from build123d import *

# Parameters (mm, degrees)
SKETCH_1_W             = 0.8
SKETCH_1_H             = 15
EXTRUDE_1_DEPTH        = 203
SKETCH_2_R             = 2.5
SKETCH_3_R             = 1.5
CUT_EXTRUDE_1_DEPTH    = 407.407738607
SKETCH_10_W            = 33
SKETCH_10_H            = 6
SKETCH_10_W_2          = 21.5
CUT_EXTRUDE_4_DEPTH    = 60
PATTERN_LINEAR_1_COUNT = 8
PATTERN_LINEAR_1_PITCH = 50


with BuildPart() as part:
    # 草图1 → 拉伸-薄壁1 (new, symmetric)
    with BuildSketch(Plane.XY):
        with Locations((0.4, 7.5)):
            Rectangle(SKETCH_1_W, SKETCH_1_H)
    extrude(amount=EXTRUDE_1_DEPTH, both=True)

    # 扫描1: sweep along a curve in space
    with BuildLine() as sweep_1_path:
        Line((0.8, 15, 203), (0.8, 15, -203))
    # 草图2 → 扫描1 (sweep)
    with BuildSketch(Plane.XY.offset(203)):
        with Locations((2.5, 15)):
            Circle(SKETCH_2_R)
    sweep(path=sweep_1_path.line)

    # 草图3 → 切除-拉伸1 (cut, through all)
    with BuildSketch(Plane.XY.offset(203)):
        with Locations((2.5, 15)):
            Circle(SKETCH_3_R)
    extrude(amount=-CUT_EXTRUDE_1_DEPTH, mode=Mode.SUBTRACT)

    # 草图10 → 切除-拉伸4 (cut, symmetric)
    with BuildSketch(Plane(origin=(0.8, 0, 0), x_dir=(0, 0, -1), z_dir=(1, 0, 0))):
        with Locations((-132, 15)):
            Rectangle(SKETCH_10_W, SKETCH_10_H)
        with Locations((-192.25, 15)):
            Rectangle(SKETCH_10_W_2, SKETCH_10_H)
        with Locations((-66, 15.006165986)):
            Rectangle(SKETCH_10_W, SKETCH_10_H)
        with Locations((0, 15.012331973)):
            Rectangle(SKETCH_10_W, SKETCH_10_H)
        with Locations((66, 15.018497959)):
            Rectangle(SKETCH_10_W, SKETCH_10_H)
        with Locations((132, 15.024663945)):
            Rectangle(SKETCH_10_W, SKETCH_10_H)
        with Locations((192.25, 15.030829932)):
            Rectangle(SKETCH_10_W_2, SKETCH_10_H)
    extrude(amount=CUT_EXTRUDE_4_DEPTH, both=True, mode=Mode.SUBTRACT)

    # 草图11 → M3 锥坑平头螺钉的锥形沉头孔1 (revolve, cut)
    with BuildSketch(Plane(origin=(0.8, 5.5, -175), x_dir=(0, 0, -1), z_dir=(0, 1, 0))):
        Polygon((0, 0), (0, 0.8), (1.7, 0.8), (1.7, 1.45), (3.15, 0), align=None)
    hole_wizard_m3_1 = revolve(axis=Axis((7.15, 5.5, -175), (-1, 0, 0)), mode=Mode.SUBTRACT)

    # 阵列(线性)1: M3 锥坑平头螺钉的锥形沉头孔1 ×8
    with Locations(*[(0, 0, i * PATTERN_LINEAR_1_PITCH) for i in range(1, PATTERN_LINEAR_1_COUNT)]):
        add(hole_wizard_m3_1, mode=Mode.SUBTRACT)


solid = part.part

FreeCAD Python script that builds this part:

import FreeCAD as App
import Part
import Sketcher
Q = App.Units.Quantity

doc = App.newDocument("Part")
body = doc.addObject("PartDesign::Body", "Body")

# Sketch on XY plane
sketch1 = body.newObject("Sketcher::SketchObject", "Sketch")
sketch1.AttachmentSupport = (doc.getObject("XY_Plane"), [""])
sketch1.MapMode = "FlatFace"
sketch1.addGeometry(Part.LineSegment(App.Vector(0, 15, 0), App.Vector(0, 0, 0)), False)
sketch1.addGeometry(Part.LineSegment(App.Vector(0, 0, 0), App.Vector(0.8, 0, 0)), False)
sketch1.addGeometry(Part.LineSegment(App.Vector(0.8, 0, 0), App.Vector(0.8, 15, 0)), False)
sketch1.addGeometry(Part.LineSegment(App.Vector(0.8, 15, 0), App.Vector(0, 15, 0)), False)
sketch1.addConstraint(Sketcher.Constraint("Coincident", 0, 2, 1, 1))
sketch1.addConstraint(Sketcher.Constraint("Coincident", 1, 2, 2, 1))
sketch1.addConstraint(Sketcher.Constraint("Coincident", 2, 2, 3, 1))
sketch1.addConstraint(Sketcher.Constraint("Coincident", 3, 2, 0, 1))
sketch1.addConstraint(Sketcher.Constraint("Vertical", 0))
sketch1.addConstraint(Sketcher.Constraint("Horizontal", 1))
sketch1.addConstraint(Sketcher.Constraint("Vertical", 2))
sketch1.addConstraint(Sketcher.Constraint("Horizontal", 3))
sketch1.addConstraint(Sketcher.Constraint("Coincident", 0, 2, -1, 1))
sketch1.addConstraint(Sketcher.Constraint("DistanceY", 0, 2, 0, 1, 15.0))
sketch1.addConstraint(Sketcher.Constraint("DistanceX", 1, 1, 1, 2, 0.8))
pad1 = body.newObject("PartDesign::Pad", "Pad")
pad1.Profile = sketch1
pad1.Length = 406
pad1.Midplane = True

# Sketch on XY plane
sketch2 = body.newObject("Sketcher::SketchObject", "Sketch001")
sketch2.AttachmentSupport = (doc.getObject("XY_Plane"), [""])
sketch2.MapMode = "FlatFace"
sketch2.AttachmentOffset = App.Placement(App.Vector(0, 0, 203), App.Rotation())
sketch2.addGeometry(Part.Circle(App.Vector(2.5, 15, 0), App.Vector(0, 0, 1), 2.5), False)
sketch2.addConstraint(Sketcher.Constraint("Diameter", 0, 5.0))
sketch2.addConstraint(Sketcher.Constraint("DistanceY", -1, 1, 0, 3, 15.0))
sketch2.addConstraint(Sketcher.Constraint("DistanceX", -1, 1, 0, 3, 2.5))

# Sketch on XZ plane
sketch3 = body.newObject("Sketcher::SketchObject", "Sketch002")
sketch3.AttachmentSupport = (doc.getObject("XZ_Plane"), [""])
sketch3.MapMode = "FlatFace"
sketch3.AttachmentOffset = App.Placement(App.Vector(0, 0, -15), App.Rotation())
sketch3.addGeometry(Part.LineSegment(App.Vector(1, 203, 0), App.Vector(1, -203, 0)), False)
sketch3.addConstraint(Sketcher.Constraint("Vertical", 0))
sketch3.addConstraint(Sketcher.Constraint("DistanceY", 0, 2, 0, 1, 406.0))
sketch3.addConstraint(Sketcher.Constraint("DistanceY", -1, 1, 0, 1, 203.0))
sketch3.addConstraint(Sketcher.Constraint("DistanceX", -1, 1, 0, 1, 0.8))
doc.recompute()

additivepipe = body.newObject("PartDesign::AdditivePipe", "AdditivePipe")
additivepipe.Profile = sketch2
additivepipe.Spine = (sketch3, ["Edge1"])

# Sketch on XY plane
sketch4 = body.newObject("Sketcher::SketchObject", "Sketch003")
sketch4.AttachmentSupport = (doc.getObject("XY_Plane"), [""])
sketch4.MapMode = "FlatFace"
sketch4.AttachmentOffset = App.Placement(App.Vector(0, 0, 203), App.Rotation())
sketch4.addGeometry(Part.Circle(App.Vector(2.5, 15, 0), App.Vector(0, 0, 1), 1.5), False)
sketch4.addConstraint(Sketcher.Constraint("Diameter", 0, 3.0))
sketch4.addConstraint(Sketcher.Constraint("DistanceY", -1, 1, 0, 3, 15.0))
sketch4.addConstraint(Sketcher.Constraint("DistanceX", -1, 1, 0, 3, 2.5))
pocket1 = body.newObject("PartDesign::Pocket", "Pocket")
pocket1.Profile = sketch4
pocket1.Type = "ThroughAll"

# Sketch on YZ plane
sketch5 = body.newObject("Sketcher::SketchObject", "Sketch004")
sketch5.AttachmentSupport = (doc.getObject("YZ_Plane"), [""])
sketch5.MapMode = "FlatFace"
sketch5.AttachmentOffset = App.Placement(App.Vector(0, 0, 0.8), App.Rotation())
sketch5.addGeometry(Part.LineSegment(App.Vector(18, 148, 0), App.Vector(12, 148, 0)), False)
sketch5.addGeometry(Part.LineSegment(App.Vector(12, 148, 0), App.Vector(12, 116, 0)), False)
sketch5.addGeometry(Part.LineSegment(App.Vector(12, 116, 0), App.Vector(18, 116, 0)), False)
sketch5.addGeometry(Part.LineSegment(App.Vector(18, 116, 0), App.Vector(18, 148, 0)), False)
sketch5.addGeometry(Part.LineSegment(App.Vector(18, 203, 0), App.Vector(12, 203, 0)), False)
sketch5.addGeometry(Part.LineSegment(App.Vector(12, 203, 0), App.Vector(12, 182, 0)), False)
sketch5.addGeometry(Part.LineSegment(App.Vector(12, 182, 0), App.Vector(18, 182, 0)), False)
sketch5.addGeometry(Part.LineSegment(App.Vector(18, 182, 0), App.Vector(18, 203, 0)), False)
sketch5.addGeometry(Part.LineSegment(App.Vector(18, 82, 0), App.Vector(12, 82, 0)), False)
sketch5.addGeometry(Part.LineSegment(App.Vector(12, 82, 0), App.Vector(12, 50, 0)), False)
sketch5.addGeometry(Part.LineSegment(App.Vector(12, 50, 0), App.Vector(18, 50, 0)), False)
sketch5.addGeometry(Part.LineSegment(App.Vector(18, 50, 0), App.Vector(18, 82, 0)), False)
sketch5.addGeometry(Part.LineSegment(App.Vector(18, 16, 0), App.Vector(12, 16, 0)), False)
sketch5.addGeometry(Part.LineSegment(App.Vector(12, 16, 0), App.Vector(12, -16, 0)), False)
sketch5.addGeometry(Part.LineSegment(App.Vector(12, -16, 0), App.Vector(18, -16, 0)), False)
sketch5.addGeometry(Part.LineSegment(App.Vector(18, -16, 0), App.Vector(18, 16, 0)), False)
sketch5.addGeometry(Part.LineSegment(App.Vector(18, -50, 0), App.Vector(12, -50, 0)), False)
sketch5.addGeometry(Part.LineSegment(App.Vector(12, -50, 0), App.Vector(12, -82, 0)), False)
sketch5.addGeometry(Part.LineSegment(App.Vector(12, -82, 0), App.Vector(18, -82, 0)), False)
sketch5.addGeometry(Part.LineSegment(App.Vector(18, -82, 0), App.Vector(18, -50, 0)), False)
sketch5.addGeometry(Part.LineSegment(App.Vector(18, -116, 0), App.Vector(12, -116, 0)), False)
sketch5.addGeometry(Part.LineSegment(App.Vector(12, -116, 0), App.Vector(12, -148, 0)), False)
sketch5.addGeometry(Part.LineSegment(App.Vector(12, -148, 0), App.Vector(18, -148, 0)), False)
sketch5.addGeometry(Part.LineSegment(App.Vector(18, -148, 0), App.Vector(18, -116, 0)), False)
sketch5.addGeometry(Part.LineSegment(App.Vector(18, -182, 0), App.Vector(12, -182, 0)), False)
sketch5.addGeometry(Part.LineSegment(App.Vector(12, -182, 0), App.Vector(12, -203, 0)), False)
sketch5.addGeometry(Part.LineSegment(App.Vector(12, -203, 0), App.Vector(18, -203, 0)), False)
sketch5.addGeometry(Part.LineSegment(App.Vector(18, -203, 0), App.Vector(18, -182, 0)), False)
sketch5.addConstraint(Sketcher.Constraint("Coincident", 0, 2, 1, 1))
sketch5.addConstraint(Sketcher.Constraint("Coincident", 1, 2, 2, 1))
sketch5.addConstraint(Sketcher.Constraint("Coincident", 2, 2, 3, 1))
sketch5.addConstraint(Sketcher.Constraint("Coincident", 3, 2, 0, 1))
sketch5.addConstraint(Sketcher.Constraint("Coincident", 4, 2, 5, 1))
sketch5.addConstraint(Sketcher.Constraint("Coincident", 5, 2, 6, 1))
sketch5.addConstraint(Sketcher.Constraint("Coincident", 6, 2, 7, 1))
sketch5.addConstraint(Sketcher.Constraint("Coincident", 7, 2, 4, 1))
sketch5.addConstraint(Sketcher.Constraint("Coincident", 8, 2, 9, 1))
sketch5.addConstraint(Sketcher.Constraint("Coincident", 9, 2, 10, 1))
sketch5.addConstraint(Sketcher.Constraint("Coincident", 10, 2, 11, 1))
sketch5.addConstraint(Sketcher.Constraint("Coincident", 11, 2, 8, 1))
sketch5.addConstraint(Sketcher.Constraint("Coincident", 12, 2, 13, 1))
sketch5.addConstraint(Sketcher.Constraint("Coincident", 13, 2, 14, 1))
sketch5.addConstraint(Sketcher.Constraint("Coincident", 14, 2, 15, 1))
sketch5.addConstraint(Sketcher.Constraint("Coincident", 15, 2, 12, 1))
sketch5.addConstraint(Sketcher.Constraint("Coincident", 16, 2, 17, 1))
sketch5.addConstraint(Sketcher.Constraint("Coincident", 17, 2, 18, 1))
sketch5.addConstraint(Sketcher.Constraint("Coincident", 18, 2, 19, 1))
sketch5.addConstraint(Sketcher.Constraint("Coincident", 19, 2, 16, 1))
sketch5.addConstraint(Sketcher.Constraint("Coincident", 20, 2, 21, 1))
sketch5.addConstraint(Sketcher.Constraint("Coincident", 21, 2, 22, 1))
sketch5.addConstraint(Sketcher.Constraint("Coincident", 22, 2, 23, 1))
sketch5.addConstraint(Sketcher.Constraint("Coincident", 23, 2, 20, 1))
sketch5.addConstraint(Sketcher.Constraint("Coincident", 24, 2, 25, 1))
sketch5.addConstraint(Sketcher.Constraint("Coincident", 25, 2, 26, 1))
sketch5.addConstraint(Sketcher.Constraint("Coincident", 26, 2, 27, 1))
sketch5.addConstraint(Sketcher.Constraint("Coincident", 27, 2, 24, 1))
sketch5.addConstraint(Sketcher.Constraint("Horizontal", 0))
sketch5.addConstraint(Sketcher.Constraint("Vertical", 1))
sketch5.addConstraint(Sketcher.Constraint("Horizontal", 2))
sketch5.addConstraint(Sketcher.Constraint("Vertical", 3))
sketch5.addConstraint(Sketcher.Constraint("Horizontal", 4))
sketch5.addConstraint(Sketcher.Constraint("Vertical", 5))
sketch5.addConstraint(Sketcher.Constraint("Horizontal", 6))
sketch5.addConstraint(Sketcher.Constraint("Vertical", 7))
sketch5.addConstraint(Sketcher.Constraint("Horizontal", 8))
sketch5.addConstraint(Sketcher.Constraint("Vertical", 9))
sketch5.addConstraint(Sketcher.Constraint("Horizontal", 10))
sketch5.addConstraint(Sketcher.Constraint("Vertical", 11))
sketch5.addConstraint(Sketcher.Constraint("Horizontal", 12))
sketch5.addConstraint(Sketcher.Constraint("Vertical", 13))
sketch5.addConstraint(Sketcher.Constraint("Horizontal", 14))
sketch5.addConstraint(Sketcher.Constraint("Vertical", 15))
sketch5.addConstraint(Sketcher.Constraint("Horizontal", 16))
sketch5.addConstraint(Sketcher.Constraint("Vertical", 17))
sketch5.addConstraint(Sketcher.Constraint("Horizontal", 18))
sketch5.addConstraint(Sketcher.Constraint("Vertical", 19))
sketch5.addConstraint(Sketcher.Constraint("Horizontal", 20))
sketch5.addConstraint(Sketcher.Constraint("Vertical", 21))
sketch5.addConstraint(Sketcher.Constraint("Horizontal", 22))
sketch5.addConstraint(Sketcher.Constraint("Vertical", 23))
sketch5.addConstraint(Sketcher.Constraint("Horizontal", 24))
sketch5.addConstraint(Sketcher.Constraint("Vertical", 25))
sketch5.addConstraint(Sketcher.Constraint("Horizontal", 26))
sketch5.addConstraint(Sketcher.Constraint("Vertical", 27))
sketch5.addConstraint(Sketcher.Constraint("Vertical", 1, 2, 4, 2))
sketch5.addConstraint(Sketcher.Constraint("Vertical", 3, 2, 6, 2))
sketch5.addConstraint(Sketcher.Constraint("Equal", 6, 8))
sketch5.addConstraint(Sketcher.Constraint("Equal", 10, 12))
sketch5.addConstraint(Sketcher.Constraint("Equal", 14, 16))
sketch5.addConstraint(Sketcher.Constraint("Equal", 18, 20))
sketch5.addConstraint(Sketcher.Constraint("Equal", 22, 24))
sketch5.addConstraint(Sketcher.Constraint("Equal", 3, 9))
sketch5.addConstraint(Sketcher.Constraint("Equal", 11, 13))
sketch5.addConstraint(Sketcher.Constraint("Equal", 15, 17))
sketch5.addConstraint(Sketcher.Constraint("Equal", 19, 21))
sketch5.addConstraint(Sketcher.Constraint("Equal", 7, 25))
sketch5.addConstraint(Sketcher.Constraint("DistanceX", 0, 2, 0, 1, 6.0))
sketch5.addConstraint(Sketcher.Constraint("DistanceY", 1, 2, 1, 1, 33.0))
sketch5.addConstraint(Sketcher.Constraint("DistanceY", 5, 2, 5, 1, 21.5))
sketch5.addConstraint(Sketcher.Constraint("DistanceX", -1, 1, 0, 2, 12.0))
sketch5.addConstraint(Sketcher.Constraint("DistanceY", -1, 1, 4, 2, 203.0))
sketch5.addConstraint(Sketcher.Constraint("DistanceY", 25, 2, -1, 1, 203.0))
sketch5.addConstraint(Sketcher.Constraint("DistanceY", 0, 2, 5, 2, 33.0))
sketch5.addConstraint(Sketcher.Constraint("DistanceY", 8, 2, 1, 2, 33.0))
sketch5.addConstraint(Sketcher.Constraint("DistanceY", 12, 2, 9, 2, 33.0))
sketch5.addConstraint(Sketcher.Constraint("DistanceY", 16, 2, 13, 2, 33.0))
sketch5.addConstraint(Sketcher.Constraint("DistanceY", 20, 2, 17, 2, 33.0))
sketch5.addConstraint(Sketcher.Constraint("DistanceX", -1, 1, 12, 2, 12.012332))
sketch5.addConstraint(Sketcher.Constraint("DistanceX", -1, 1, 24, 2, 12.03083))
sketch5.addConstraint(Sketcher.Constraint("DistanceX", 9, 2, 16, 2, 0.012332))
sketch5.addConstraint(Sketcher.Constraint("DistanceX", 13, 2, 20, 2, 0.012332))
sketch5.addConstraint(Sketcher.Constraint("DistanceX", 17, 2, 24, 2, 0.012332))
pocket2 = body.newObject("PartDesign::Pocket", "Pocket001")
pocket2.Profile = sketch5
pocket2.Length = 120
pocket2.Midplane = True

# Sketch on XZ plane
sketch6 = body.newObject("Sketcher::SketchObject", "Sketch005")
sketch6.AttachmentSupport = (doc.getObject("XZ_Plane"), [""])
sketch6.MapMode = "FlatFace"
sketch6.AttachmentOffset = App.Placement(App.Vector(0, 0, -5.5), App.Rotation())
sketch6.addGeometry(Part.LineSegment(App.Vector(0, -175, 0), App.Vector(0.8, -175, 0)), False)
sketch6.addGeometry(Part.LineSegment(App.Vector(0.8, -175, 0), App.Vector(0.8, -178.2, 0)), False)
sketch6.addGeometry(Part.LineSegment(App.Vector(0.8, -178.2, 0), App.Vector(-0.7, -176.7, 0)), False)
sketch6.addGeometry(Part.LineSegment(App.Vector(-0.7, -176.7, 0), App.Vector(0, -176.7, 0)), False)
sketch6.addGeometry(Part.LineSegment(App.Vector(0, -176.7, 0), App.Vector(0, -175, 0)), False)
sketch6.addGeometry(Part.LineSegment(App.Vector(0.8, -175, 0), App.Vector(-0.7, -175, 0)), True)  # axis
sketch6.addConstraint(Sketcher.Constraint("Coincident", 0, 2, 1, 1))
sketch6.addConstraint(Sketcher.Constraint("Coincident", 1, 2, 2, 1))
sketch6.addConstraint(Sketcher.Constraint("Coincident", 2, 2, 3, 1))
sketch6.addConstraint(Sketcher.Constraint("Coincident", 3, 2, 4, 1))
sketch6.addConstraint(Sketcher.Constraint("Coincident", 4, 2, 0, 1))
sketch6.addConstraint(Sketcher.Constraint("Horizontal", 0))
sketch6.addConstraint(Sketcher.Constraint("Vertical", 1))
sketch6.addConstraint(Sketcher.Constraint("Horizontal", 3))
sketch6.addConstraint(Sketcher.Constraint("Vertical", 4))
sketch6.addConstraint(Sketcher.Constraint("Horizontal", 5))
sketch6.addConstraint(Sketcher.Constraint("Coincident", 5, 1, 0, 2))
sketch6.addConstraint(Sketcher.Constraint("PointOnObject", 3, 2, -2))
sketch6.addConstraint(Sketcher.Constraint("Vertical", 2, 2, 5, 2))
sketch6.addConstraint(Sketcher.Constraint("Angle", 2, Q("135 deg")))
sketch6.addConstraint(Sketcher.Constraint("DistanceX", 0, 1, 0, 2, 0.8))
sketch6.addConstraint(Sketcher.Constraint("DistanceY", 4, 1, 4, 2, 1.7))
sketch6.addConstraint(Sketcher.Constraint("DistanceY", 0, 2, -1, 1, 175.0))
sketch6.addConstraint(Sketcher.Constraint("DistanceX", 3, 1, 3, 2, 0.65))
groove = body.newObject("PartDesign::Groove", "Groove")
groove.Profile = sketch6
groove.ReferenceAxis = (sketch6, ["Axis0"])
groove.Angle = 360
doc.recompute()

linearpattern = body.newObject("PartDesign::LinearPattern", "LinearPattern")
linearpattern.Originals = [groove]
linearpattern.Direction = (doc.getObject("Z_Axis"), [""])
linearpattern.Mode = "offset"
linearpattern.Offset = 50
linearpattern.Occurrences = 8
body.Tip = linearpattern

doc.recompute()
